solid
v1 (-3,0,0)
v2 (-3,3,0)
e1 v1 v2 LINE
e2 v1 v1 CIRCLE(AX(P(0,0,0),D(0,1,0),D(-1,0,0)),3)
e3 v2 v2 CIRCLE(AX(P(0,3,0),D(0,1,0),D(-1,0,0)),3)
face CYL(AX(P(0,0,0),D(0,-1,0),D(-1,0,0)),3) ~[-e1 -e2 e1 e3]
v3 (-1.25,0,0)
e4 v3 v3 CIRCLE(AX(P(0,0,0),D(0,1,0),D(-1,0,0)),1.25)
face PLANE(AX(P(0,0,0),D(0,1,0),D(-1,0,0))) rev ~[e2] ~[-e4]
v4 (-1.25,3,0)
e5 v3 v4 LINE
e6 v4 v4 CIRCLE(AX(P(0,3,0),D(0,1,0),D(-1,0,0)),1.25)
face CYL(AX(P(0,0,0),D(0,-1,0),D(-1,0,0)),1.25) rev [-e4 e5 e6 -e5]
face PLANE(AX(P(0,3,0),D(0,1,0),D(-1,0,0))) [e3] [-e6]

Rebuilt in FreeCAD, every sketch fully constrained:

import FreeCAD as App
import Part
import Sketcher

V = App.Vector
Q = App.Units.Quantity

doc = App.newDocument("Part")
body = doc.addObject("PartDesign::Body", "Body")

# Sketch on XZ plane
sketch1 = doc.addObject("Sketcher::SketchObject", "Sketch")
body.addObject(sketch1)
sketch1.AttachmentSupport = (doc.XZ_Plane, [""])
sketch1.MapMode = "FlatFace"
sketch1.addGeometry(Part.Circle(V(0, 0, 0), V(0, 0, 1), 3), False)
sketch1.addGeometry(Part.Circle(V(0, 0, 0), V(0, 0, 1), 1.2), False)
sketch1.addConstraint(Sketcher.Constraint("Coincident", 0, 3, -1, 1))
sketch1.addConstraint(Sketcher.Constraint("Coincident", 1, 3, -1, 1))
sketch1.addConstraint(Sketcher.Constraint("Diameter", 0, Q("6 mm")))
sketch1.addConstraint(Sketcher.Constraint("Diameter", 1, Q("2.5 mm")))
pad1 = doc.addObject("PartDesign::Pad", "Pad")
body.addObject(pad1)
pad1.Profile = sketch1
pad1.Length = 3
pad1.Reversed = True

doc.recompute()
